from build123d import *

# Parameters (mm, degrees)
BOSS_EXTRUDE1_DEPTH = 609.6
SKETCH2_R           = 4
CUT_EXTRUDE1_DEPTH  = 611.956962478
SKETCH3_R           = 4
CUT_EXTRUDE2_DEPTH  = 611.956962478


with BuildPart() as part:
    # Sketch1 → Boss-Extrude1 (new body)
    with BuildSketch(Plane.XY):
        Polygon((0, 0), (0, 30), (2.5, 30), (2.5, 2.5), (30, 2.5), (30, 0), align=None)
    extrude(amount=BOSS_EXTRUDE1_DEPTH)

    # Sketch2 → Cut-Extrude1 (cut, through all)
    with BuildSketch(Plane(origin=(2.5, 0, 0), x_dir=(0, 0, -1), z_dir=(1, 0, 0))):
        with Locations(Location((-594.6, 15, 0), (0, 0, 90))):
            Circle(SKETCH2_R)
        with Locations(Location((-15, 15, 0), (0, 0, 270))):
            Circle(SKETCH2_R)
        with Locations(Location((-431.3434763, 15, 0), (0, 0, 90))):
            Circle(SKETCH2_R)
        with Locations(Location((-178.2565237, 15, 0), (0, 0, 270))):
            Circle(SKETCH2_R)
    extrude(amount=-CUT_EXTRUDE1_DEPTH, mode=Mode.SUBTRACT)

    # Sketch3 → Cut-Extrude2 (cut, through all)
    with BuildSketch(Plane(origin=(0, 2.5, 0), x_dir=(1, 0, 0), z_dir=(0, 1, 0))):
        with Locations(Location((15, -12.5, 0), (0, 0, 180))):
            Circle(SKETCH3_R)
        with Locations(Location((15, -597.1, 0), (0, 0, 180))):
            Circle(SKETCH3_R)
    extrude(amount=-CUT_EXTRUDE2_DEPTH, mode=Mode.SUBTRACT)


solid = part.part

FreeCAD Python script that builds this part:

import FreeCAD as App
import Part
import Sketcher

V = App.Vector
Q = App.Units.Quantity


def add_polygon(sketch, points):
    """Adds a closed chain of lines whose ends are joined by coincident constraints."""
    first, n = sketch.GeometryCount, len(points)
    for a, b in zip(points, points[1:] + points[:1]):
        sketch.addGeometry(Part.LineSegment(App.Vector(*a, 0), App.Vector(*b, 0)), False)
    for i in range(n):
        sketch.addConstraint(Sketcher.Constraint("Coincident", first + i, 2, first + (i + 1) % n, 1))

doc = App.newDocument("Part")
params = doc.addObject("Spreadsheet::Sheet", "Params")
for row, (alias, value) in enumerate([
    ("sketch1_width", "30 mm"),
    ("sketch1_width2", "27.5 mm"),
    ("pad1_length", "609.6 mm"),
    ("sketch2_diameter", "8 mm"),
    ("sketch3_diameter", "8 mm"),
], start=1):
    params.set(f"A{row}", alias)
    params.set(f"B{row}", "=" + value)
    params.setAlias(f"B{row}", alias)

body = doc.addObject("PartDesign::Body", "Body")

sketch1 = doc.addObject("Sketcher::SketchObject", "Sketch")
body.addObject(sketch1)
sketch1.AttachmentSupport = (doc.XY_Plane, [""])
sketch1.MapMode = "FlatFace"
add_polygon(sketch1, [(0, 30), (0, 0), (30, 0), (30, 2.5), (2.5, 2.5), (2.5, 30)])
sketch1.addConstraint([
    Sketcher.Constraint("Vertical", 0),
    Sketcher.Constraint("Horizontal", 1),
    Sketcher.Constraint("Vertical", 2),
    Sketcher.Constraint("Horizontal", 3),
    Sketcher.Constraint("Vertical", 4),
    Sketcher.Constraint("Horizontal", 5),
    Sketcher.Constraint("Coincident", 0, 2, -1, 1),
    Sketcher.Constraint("Equal", 1, 0),
    Sketcher.Constraint("Equal", 5, 2),
    Sketcher.Constraint("DistanceX", 1, 1, 1, 2, Q("30 mm")),
    Sketcher.Constraint("DistanceX", 3, 2, 3, 1, Q("27.5 mm")),
])
sketch1.setExpression("Constraints[15]", "Params.sketch1_width")
sketch1.setExpression("Constraints[16]", "Params.sketch1_width2")
pad1 = doc.addObject("PartDesign::Pad", "Pad")
body.addObject(pad1)
pad1.Profile = sketch1
pad1.setExpression("Length", "Params.pad1_length")

sketch2 = doc.addObject("Sketcher::SketchObject", "Sketch001")
body.addObject(sketch2)
sketch2.AttachmentSupport = (doc.YZ_Plane, [""])
sketch2.MapMode = "FlatFace"
sketch2.AttachmentOffset = App.Placement(V(0, 0, 2.5), App.Rotation())
sketch2.addGeometry([
    Part.Circle(V(15, 594.6, 0), V(0, 0, 1), 4),
    Part.Circle(V(15, 15, 0), V(0, 0, 1), 4),
    Part.Circle(V(15, 431.3, 0), V(0, 0, 1), 4),
    Part.Circle(V(15, 178.3, 0), V(0, 0, 1), 4),
], False)
sketch2.addConstraint([
    Sketcher.Constraint("Equal", 0, 1),
    Sketcher.Constraint("Equal", 1, 2),
    Sketcher.Constraint("Equal", 2, 3),
    Sketcher.Constraint("Vertical", 0, 3, 1, 3),
    Sketcher.Constraint("Vertical", 1, 3, 2, 3),
    Sketcher.Constraint("Vertical", 2, 3, 3, 3),
    Sketcher.Constraint("Diameter", 0, Q("8 mm")),
    Sketcher.Constraint("DistanceX", -1, 1, 0, 3, Q("15 mm")),
    Sketcher.Constraint("DistanceY", -1, 1, 1, 3, Q("15 mm")),
    Sketcher.Constraint("DistanceY", -1, 1, 0, 3, Q("594.6 mm")),
    Sketcher.Constraint("DistanceY", -1, 1, 2, 3, Q("431.343476 mm")),
    Sketcher.Constraint("DistanceY", -1, 1, 3, 3, Q("178.256524 mm")),
])
sketch2.setExpression("Constraints[6]", "Params.sketch2_diameter")
pocket1 = doc.addObject("PartDesign::Pocket", "Pocket")
body.addObject(pocket1)
pocket1.Profile = sketch2
pocket1.Type = "ThroughAll"

sketch3 = doc.addObject("Sketcher::SketchObject", "Sketch002")
body.addObject(sketch3)
sketch3.AttachmentSupport = (doc.XZ_Plane, [""])
sketch3.MapMode = "FlatFace"
sketch3.AttachmentOffset = App.Placement(V(0, 0, -2.5), App.Rotation())
sketch3.addGeometry([
    Part.Circle(V(15, 12.5, 0), V(0, 0, 1), 4),
    Part.Circle(V(15, 597.1, 0), V(0, 0, 1), 4),
], False)
sketch3.addConstraint([
    Sketcher.Constraint("Equal", 0, 1),
    Sketcher.Constraint("Vertical", 0, 3, 1, 3),
    Sketcher.Constraint("Diameter", 0, Q("8 mm")),
    Sketcher.Constraint("DistanceX", -1, 1, 0, 3, Q("15 mm")),
    Sketcher.Constraint("DistanceY", -1, 1, 0, 3, Q("12.5 mm")),
    Sketcher.Constraint("DistanceY", -1, 1, 1, 3, Q("597.1 mm")),
])
sketch3.setExpression("Constraints[2]", "Params.sketch3_diameter")
pocket2 = doc.addObject("PartDesign::Pocket", "Pocket001")
body.addObject(pocket2)
pocket2.Profile = sketch3
pocket2.Type = "ThroughAll"
pocket2.Reversed = True

doc.recompute()
